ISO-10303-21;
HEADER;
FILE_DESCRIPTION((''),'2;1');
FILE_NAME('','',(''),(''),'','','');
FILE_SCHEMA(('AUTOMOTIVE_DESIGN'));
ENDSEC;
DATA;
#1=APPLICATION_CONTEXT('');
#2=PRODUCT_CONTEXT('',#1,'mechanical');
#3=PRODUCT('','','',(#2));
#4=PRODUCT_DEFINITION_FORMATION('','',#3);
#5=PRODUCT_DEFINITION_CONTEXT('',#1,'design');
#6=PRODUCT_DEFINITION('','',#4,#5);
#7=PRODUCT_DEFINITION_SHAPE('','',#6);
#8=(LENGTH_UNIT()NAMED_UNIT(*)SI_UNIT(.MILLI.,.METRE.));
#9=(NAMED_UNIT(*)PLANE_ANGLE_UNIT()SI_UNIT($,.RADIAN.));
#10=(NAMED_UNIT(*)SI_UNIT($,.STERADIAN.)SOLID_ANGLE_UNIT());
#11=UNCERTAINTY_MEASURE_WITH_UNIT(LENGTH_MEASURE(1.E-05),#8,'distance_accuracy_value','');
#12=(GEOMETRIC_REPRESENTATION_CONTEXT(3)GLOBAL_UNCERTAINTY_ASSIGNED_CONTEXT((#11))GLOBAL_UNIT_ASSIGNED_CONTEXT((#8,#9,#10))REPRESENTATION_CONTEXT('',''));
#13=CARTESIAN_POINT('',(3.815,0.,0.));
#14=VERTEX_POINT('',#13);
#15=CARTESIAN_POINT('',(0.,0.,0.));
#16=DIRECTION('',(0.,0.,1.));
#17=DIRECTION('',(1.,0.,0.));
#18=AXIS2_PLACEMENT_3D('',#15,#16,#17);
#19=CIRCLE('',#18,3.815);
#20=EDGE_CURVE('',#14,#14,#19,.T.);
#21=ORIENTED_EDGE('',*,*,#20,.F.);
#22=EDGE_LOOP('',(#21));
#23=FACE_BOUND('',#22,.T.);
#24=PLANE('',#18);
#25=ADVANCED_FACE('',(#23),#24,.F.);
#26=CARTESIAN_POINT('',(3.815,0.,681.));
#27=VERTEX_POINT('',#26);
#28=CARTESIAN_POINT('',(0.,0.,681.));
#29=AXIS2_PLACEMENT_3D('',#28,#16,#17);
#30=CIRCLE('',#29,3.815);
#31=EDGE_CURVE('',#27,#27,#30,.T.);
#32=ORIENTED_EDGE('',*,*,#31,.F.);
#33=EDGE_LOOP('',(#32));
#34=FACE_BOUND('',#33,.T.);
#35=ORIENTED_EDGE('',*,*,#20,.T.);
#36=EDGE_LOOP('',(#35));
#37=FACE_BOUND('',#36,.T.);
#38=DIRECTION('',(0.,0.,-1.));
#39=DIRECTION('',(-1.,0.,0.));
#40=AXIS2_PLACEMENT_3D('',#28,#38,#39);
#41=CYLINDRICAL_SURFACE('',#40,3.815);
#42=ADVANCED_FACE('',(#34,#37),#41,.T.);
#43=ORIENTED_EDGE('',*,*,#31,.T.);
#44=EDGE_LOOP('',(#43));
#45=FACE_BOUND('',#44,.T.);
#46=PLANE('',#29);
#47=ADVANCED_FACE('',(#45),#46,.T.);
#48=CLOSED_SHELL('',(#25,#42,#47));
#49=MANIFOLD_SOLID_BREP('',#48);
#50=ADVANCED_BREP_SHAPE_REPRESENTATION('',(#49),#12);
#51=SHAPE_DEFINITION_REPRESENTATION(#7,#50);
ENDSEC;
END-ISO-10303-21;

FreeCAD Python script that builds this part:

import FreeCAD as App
import Part
import Sketcher

V = App.Vector

doc = App.newDocument("Part")
params = doc.addObject("Spreadsheet::Sheet", "Params")
for row, (alias, value) in enumerate([
    ("sketch1_diameter", "7.63 mm"),
    ("pad1_length", "681 mm"),
], start=1):
    params.set(f"A{row}", alias)
    params.set(f"B{row}", "=" + value)
    params.setAlias(f"B{row}", alias)

body = doc.addObject("PartDesign::Body", "Body")

sketch1 = body.newObject("Sketcher::SketchObject", "Sketch")
sketch1.AttachmentSupport = (doc.getObject("XY_Plane"), [""])
sketch1.MapMode = "FlatFace"
sketch1.addGeometry(Part.Circle(V(0, 0, 0), V(0, 0, 1), 3.8), False)
sketch1.addConstraint(Sketcher.Constraint("Coincident", 0, 3, -1, 1))
sketch1.addConstraint(Sketcher.Constraint("Diameter", 0, 7.63))
sketch1.setExpression("Constraints[1]", "Params.sketch1_diameter")
pad1 = body.newObject("PartDesign::Pad", "Pad")
pad1.Profile = sketch1
pad1.setExpression("Length", "Params.pad1_length")

doc.recompute()
